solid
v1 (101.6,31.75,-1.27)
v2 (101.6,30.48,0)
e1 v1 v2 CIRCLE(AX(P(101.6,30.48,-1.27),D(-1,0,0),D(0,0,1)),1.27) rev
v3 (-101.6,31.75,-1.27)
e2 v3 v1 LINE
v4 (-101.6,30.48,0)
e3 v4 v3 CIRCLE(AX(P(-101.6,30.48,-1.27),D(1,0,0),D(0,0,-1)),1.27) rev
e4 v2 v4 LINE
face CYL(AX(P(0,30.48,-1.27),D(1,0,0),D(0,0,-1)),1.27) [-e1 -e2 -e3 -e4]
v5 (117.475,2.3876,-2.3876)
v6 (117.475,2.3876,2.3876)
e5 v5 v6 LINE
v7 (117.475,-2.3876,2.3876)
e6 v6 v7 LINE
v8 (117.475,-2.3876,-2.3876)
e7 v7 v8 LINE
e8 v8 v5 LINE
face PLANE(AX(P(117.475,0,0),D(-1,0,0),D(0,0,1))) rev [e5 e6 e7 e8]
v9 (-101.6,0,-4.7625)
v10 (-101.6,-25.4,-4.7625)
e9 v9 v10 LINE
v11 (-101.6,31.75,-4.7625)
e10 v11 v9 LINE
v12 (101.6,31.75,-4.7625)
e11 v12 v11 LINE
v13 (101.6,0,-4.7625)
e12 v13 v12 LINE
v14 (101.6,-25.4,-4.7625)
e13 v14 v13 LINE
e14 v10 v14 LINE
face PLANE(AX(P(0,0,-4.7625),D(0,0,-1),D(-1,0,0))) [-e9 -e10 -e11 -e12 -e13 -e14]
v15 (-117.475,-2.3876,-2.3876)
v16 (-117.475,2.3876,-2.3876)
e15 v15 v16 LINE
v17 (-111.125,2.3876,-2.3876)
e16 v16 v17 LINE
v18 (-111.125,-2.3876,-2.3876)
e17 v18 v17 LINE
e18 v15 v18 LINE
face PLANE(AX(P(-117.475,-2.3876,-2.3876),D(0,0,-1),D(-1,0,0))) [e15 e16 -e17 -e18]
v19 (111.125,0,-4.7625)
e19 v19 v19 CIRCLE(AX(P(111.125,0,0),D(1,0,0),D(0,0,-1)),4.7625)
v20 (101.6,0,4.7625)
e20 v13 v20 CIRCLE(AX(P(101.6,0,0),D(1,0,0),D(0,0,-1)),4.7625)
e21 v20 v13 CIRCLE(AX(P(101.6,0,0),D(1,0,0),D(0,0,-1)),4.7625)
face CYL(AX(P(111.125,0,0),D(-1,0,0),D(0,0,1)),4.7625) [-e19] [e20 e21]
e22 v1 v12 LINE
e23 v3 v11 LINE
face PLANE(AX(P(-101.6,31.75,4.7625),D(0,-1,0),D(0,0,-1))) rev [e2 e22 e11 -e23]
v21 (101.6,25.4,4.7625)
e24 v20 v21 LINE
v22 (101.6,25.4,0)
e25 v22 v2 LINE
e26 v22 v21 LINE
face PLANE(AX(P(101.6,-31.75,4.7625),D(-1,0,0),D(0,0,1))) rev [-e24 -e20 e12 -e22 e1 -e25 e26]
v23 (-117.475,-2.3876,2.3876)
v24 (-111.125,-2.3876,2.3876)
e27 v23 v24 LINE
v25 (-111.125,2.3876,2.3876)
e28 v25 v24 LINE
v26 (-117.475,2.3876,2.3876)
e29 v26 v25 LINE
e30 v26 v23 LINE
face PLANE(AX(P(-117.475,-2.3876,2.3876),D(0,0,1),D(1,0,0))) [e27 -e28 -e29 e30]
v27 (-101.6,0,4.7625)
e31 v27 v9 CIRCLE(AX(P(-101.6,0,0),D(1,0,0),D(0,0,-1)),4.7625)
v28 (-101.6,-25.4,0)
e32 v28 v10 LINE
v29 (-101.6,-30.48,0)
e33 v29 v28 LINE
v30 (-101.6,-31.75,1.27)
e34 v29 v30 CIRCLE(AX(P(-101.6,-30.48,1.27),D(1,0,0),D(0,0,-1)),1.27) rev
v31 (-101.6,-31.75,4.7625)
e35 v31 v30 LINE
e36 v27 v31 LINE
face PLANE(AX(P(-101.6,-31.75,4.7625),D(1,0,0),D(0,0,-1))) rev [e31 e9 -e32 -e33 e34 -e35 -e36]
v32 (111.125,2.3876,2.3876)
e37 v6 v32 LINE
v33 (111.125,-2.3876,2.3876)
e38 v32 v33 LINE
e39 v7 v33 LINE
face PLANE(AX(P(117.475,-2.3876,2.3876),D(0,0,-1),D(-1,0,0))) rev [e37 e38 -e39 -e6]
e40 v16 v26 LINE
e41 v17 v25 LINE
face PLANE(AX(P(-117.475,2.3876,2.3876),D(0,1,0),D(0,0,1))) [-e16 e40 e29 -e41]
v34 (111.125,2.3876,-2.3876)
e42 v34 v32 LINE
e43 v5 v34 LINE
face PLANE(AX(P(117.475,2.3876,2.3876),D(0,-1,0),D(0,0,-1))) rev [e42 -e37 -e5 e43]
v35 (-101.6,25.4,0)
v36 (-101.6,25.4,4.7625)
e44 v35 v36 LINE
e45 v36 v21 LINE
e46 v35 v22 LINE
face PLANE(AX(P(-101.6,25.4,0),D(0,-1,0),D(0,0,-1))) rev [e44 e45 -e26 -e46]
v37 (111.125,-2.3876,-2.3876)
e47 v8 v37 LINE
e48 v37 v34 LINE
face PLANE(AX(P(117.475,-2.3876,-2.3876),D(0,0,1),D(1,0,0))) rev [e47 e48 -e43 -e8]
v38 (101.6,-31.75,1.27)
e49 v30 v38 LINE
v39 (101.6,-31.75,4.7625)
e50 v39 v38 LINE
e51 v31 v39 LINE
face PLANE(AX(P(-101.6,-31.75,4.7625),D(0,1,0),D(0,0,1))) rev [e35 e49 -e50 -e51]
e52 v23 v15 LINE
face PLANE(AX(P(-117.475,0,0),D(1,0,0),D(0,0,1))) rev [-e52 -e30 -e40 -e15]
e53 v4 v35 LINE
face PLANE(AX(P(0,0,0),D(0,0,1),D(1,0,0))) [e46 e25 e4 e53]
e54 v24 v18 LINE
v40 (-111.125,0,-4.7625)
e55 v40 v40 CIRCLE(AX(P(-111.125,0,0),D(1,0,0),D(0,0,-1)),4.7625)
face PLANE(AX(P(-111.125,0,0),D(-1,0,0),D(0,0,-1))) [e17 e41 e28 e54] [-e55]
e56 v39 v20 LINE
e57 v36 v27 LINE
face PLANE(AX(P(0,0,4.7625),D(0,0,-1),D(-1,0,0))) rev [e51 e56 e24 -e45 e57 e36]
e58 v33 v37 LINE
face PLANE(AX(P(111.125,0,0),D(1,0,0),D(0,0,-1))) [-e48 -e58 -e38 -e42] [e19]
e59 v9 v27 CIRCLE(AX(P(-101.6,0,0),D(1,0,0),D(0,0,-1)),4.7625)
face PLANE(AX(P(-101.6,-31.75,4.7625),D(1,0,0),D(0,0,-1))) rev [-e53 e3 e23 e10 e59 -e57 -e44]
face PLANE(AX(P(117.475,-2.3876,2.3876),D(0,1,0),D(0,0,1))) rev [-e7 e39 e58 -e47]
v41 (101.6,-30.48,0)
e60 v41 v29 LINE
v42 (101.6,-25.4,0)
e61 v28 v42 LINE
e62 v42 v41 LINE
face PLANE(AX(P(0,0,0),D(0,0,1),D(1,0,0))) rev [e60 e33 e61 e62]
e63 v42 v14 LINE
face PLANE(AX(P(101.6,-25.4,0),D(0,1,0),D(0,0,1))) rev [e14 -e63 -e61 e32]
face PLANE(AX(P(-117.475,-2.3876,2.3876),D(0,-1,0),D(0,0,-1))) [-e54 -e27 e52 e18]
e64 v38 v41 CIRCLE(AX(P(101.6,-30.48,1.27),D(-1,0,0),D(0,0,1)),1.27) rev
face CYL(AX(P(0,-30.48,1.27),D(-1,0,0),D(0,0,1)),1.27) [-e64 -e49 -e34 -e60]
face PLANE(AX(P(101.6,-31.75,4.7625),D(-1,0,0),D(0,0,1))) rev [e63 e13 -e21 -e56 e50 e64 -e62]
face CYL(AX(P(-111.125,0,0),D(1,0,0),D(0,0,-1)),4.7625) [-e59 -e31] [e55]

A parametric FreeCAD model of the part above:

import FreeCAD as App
import Part
import Sketcher
from FreeCAD import Vector
Q = App.Units.Quantity


def edges_at(feature, points):
    """Names of the edges that pass closest to the given points."""
    edges = feature.Shape.Edges
    near = lambda p: min(range(len(edges)), key=lambda i: edges[i].distToShape(Part.Vertex(*p))[0])
    return sorted({f"Edge{near(p) + 1}" for p in points})

doc = App.newDocument("Part")
body = doc.addObject("PartDesign::Body", "Body")

# Sketch on XY plane
sketch1 = doc.addObject("Sketcher::SketchObject", "Sketch")
body.addObject(sketch1)
sketch1.AttachmentSupport = (doc.XY_Plane, [""])
sketch1.MapMode = "FlatFace"
sketch1.addGeometry([
    Part.LineSegment(Vector(-102, 32, 0), Vector(-102, -32, 0)),
    Part.LineSegment(Vector(-102, -32, 0), Vector(102, -32, 0)),
    Part.LineSegment(Vector(102, -32, 0), Vector(102, 32, 0)),
    Part.LineSegment(Vector(102, 32, 0), Vector(-102, 32, 0)),
], False)
sketch1.addConstraint([
    Sketcher.Constraint("Coincident", 0, 2, 1, 1),
    Sketcher.Constraint("Coincident", 1, 2, 2, 1),
    Sketcher.Constraint("Coincident", 2, 2, 3, 1),
    Sketcher.Constraint("Coincident", 3, 2, 0, 1),
    Sketcher.Constraint("Vertical", 0),
    Sketcher.Constraint("Horizontal", 1),
    Sketcher.Constraint("Vertical", 2),
    Sketcher.Constraint("Horizontal", 3),
    Sketcher.Constraint("Symmetric", 0, 2, 2, 2, -1, 1),
    Sketcher.Constraint("DistanceX", 1, 1, 1, 2, Q("8 in")),
    Sketcher.Constraint("DistanceY", 0, 2, 0, 1, Q("2.5 in")),
])
pad1 = doc.addObject("PartDesign::Pad", "Pad")
body.addObject(pad1)
pad1.Profile = sketch1
pad1.Length = Q("0.375 in")
pad1.Midplane = True

# Sketch on YZ plane
sketch2 = doc.addObject("Sketcher::SketchObject", "Sketch001")
body.addObject(sketch2)
sketch2.AttachmentSupport = (doc.YZ_Plane, [""])
sketch2.MapMode = "FlatFace"
sketch2.AttachmentOffset = App.Placement(Vector(0, 0, 4 * 25.4), App.Rotation())
sketch2.addGeometry(Part.Circle(Vector(0, 0, 0), Vector(0, 0, 1), 4.8), False)
sketch2.addConstraint([
    Sketcher.Constraint("Coincident", 0, 3, -1, 1),
    Sketcher.Constraint("Diameter", 0, Q("0.375 in")),
])
pad2 = doc.addObject("PartDesign::Pad", "Pad001")
body.addObject(pad2)
pad2.Profile = sketch2
pad2.Length = Q("0.375 in")

# Sketch on YZ plane
sketch3 = doc.addObject("Sketcher::SketchObject", "Sketch002")
body.addObject(sketch3)
sketch3.AttachmentSupport = (doc.YZ_Plane, [""])
sketch3.MapMode = "FlatFace"
sketch3.AttachmentOffset = App.Placement(Vector(0, 0, 4.375 * 25.4), App.Rotation())
sketch3.addGeometry([
    Part.LineSegment(Vector(2.4, 2.4, 0), Vector(-2.4, 2.4, 0)),
    Part.LineSegment(Vector(-2.4, 2.4, 0), Vector(-2.4, -2.4, 0)),
    Part.LineSegment(Vector(-2.4, -2.4, 0), Vector(2.4, -2.4, 0)),
    Part.LineSegment(Vector(2.4, -2.4, 0), Vector(2.4, 2.4, 0)),
], False)
sketch3.addConstraint([
    Sketcher.Constraint("Coincident", 0, 2, 1, 1),
    Sketcher.Constraint("Coincident", 1, 2, 2, 1),
    Sketcher.Constraint("Coincident", 2, 2, 3, 1),
    Sketcher.Constraint("Coincident", 3, 2, 0, 1),
    Sketcher.Constraint("Horizontal", 0),
    Sketcher.Constraint("Vertical", 1),
    Sketcher.Constraint("Horizontal", 2),
    Sketcher.Constraint("Vertical", 3),
    Sketcher.Constraint("Symmetric", 0, 2, 2, 2, -1, 1),
    Sketcher.Constraint("Equal", 2, 1),
    Sketcher.Constraint("DistanceX", 0, 2, 0, 1, Q("0.188 in")),
])
pad3 = doc.addObject("PartDesign::Pad", "Pad002")
body.addObject(pad3)
pad3.Profile = sketch3
pad3.Length = Q("0.25 in")
doc.recompute()

mirrored = doc.addObject("PartDesign::Mirrored", "Mirrored")
body.addObject(mirrored)
mirrored.Originals = [pad2, pad3]
mirrored.MirrorPlane = (doc.YZ_Plane, [""])
body.Tip = mirrored

# Sketch on XY plane
sketch4 = doc.addObject("Sketcher::SketchObject", "Sketch003")
body.addObject(sketch4)
sketch4.AttachmentSupport = (doc.XY_Plane, [""])
sketch4.MapMode = "FlatFace"
sketch4.AttachmentOffset = App.Placement(Vector(0, 0, 0.1875 * 25.4), App.Rotation())
sketch4.addGeometry([
    Part.LineSegment(Vector(-102, 32, 0), Vector(-102, 25, 0)),
    Part.LineSegment(Vector(-102, 25, 0), Vector(102, 25, 0)),
    Part.LineSegment(Vector(102, 25, 0), Vector(102, 32, 0)),
    Part.LineSegment(Vector(102, 32, 0), Vector(-102, 32, 0)),
], False)
sketch4.addConstraint([
    Sketcher.Constraint("Coincident", 0, 2, 1, 1),
    Sketcher.Constraint("Coincident", 1, 2, 2, 1),
    Sketcher.Constraint("Coincident", 2, 2, 3, 1),
    Sketcher.Constraint("Coincident", 3, 2, 0, 1),
    Sketcher.Constraint("Vertical", 0),
    Sketcher.Constraint("Horizontal", 1),
    Sketcher.Constraint("Vertical", 2),
    Sketcher.Constraint("Horizontal", 3),
    Sketcher.Constraint("DistanceX", 1, 1, 1, 2, Q("8 in")),
    Sketcher.Constraint("DistanceX", 0, 2, -1, 1, Q("4 in")),
    Sketcher.Constraint("DistanceY", -1, 1, 0, 2, Q("1 in")),
    Sketcher.Constraint("DistanceY", 0, 2, 0, 1, Q("0.25 in")),
])
pocket1 = doc.addObject("PartDesign::Pocket", "Pocket")
body.addObject(pocket1)
pocket1.Profile = sketch4
pocket1.Length = Q("0.1875 in")

# Sketch on XY plane
sketch5 = doc.addObject("Sketcher::SketchObject", "Sketch004")
body.addObject(sketch5)
sketch5.AttachmentSupport = (doc.XY_Plane, [""])
sketch5.MapMode = "FlatFace"
sketch5.AttachmentOffset = App.Placement(Vector(0, 0, -0.1875 * 25.4), App.Rotation())
sketch5.addGeometry([
    Part.LineSegment(Vector(102, -25, 0), Vector(102, -32, 0)),
    Part.LineSegment(Vector(102, -32, 0), Vector(-102, -32, 0)),
    Part.LineSegment(Vector(-102, -32, 0), Vector(-102, -25, 0)),
    Part.LineSegment(Vector(-102, -25, 0), Vector(102, -25, 0)),
], False)
sketch5.addConstraint([
    Sketcher.Constraint("Coincident", 0, 2, 1, 1),
    Sketcher.Constraint("Coincident", 1, 2, 2, 1),
    Sketcher.Constraint("Coincident", 2, 2, 3, 1),
    Sketcher.Constraint("Coincident", 3, 2, 0, 1),
    Sketcher.Constraint("Vertical", 0),
    Sketcher.Constraint("Horizontal", 1),
    Sketcher.Constraint("Vertical", 2),
    Sketcher.Constraint("Horizontal", 3),
    Sketcher.Constraint("DistanceX", 1, 2, 1, 1, Q("8 in")),
    Sketcher.Constraint("DistanceX", -1, 1, 0, 2, Q("4 in")),
    Sketcher.Constraint("DistanceY", 2, 2, -1, 1, Q("1 in")),
    Sketcher.Constraint("DistanceY", 0, 2, 0, 1, Q("0.25 in")),
])
pocket2 = doc.addObject("PartDesign::Pocket", "Pocket001")
body.addObject(pocket2)
pocket2.Profile = sketch5
pocket2.Length = Q("0.1875 in")
pocket2.Reversed = True
doc.recompute()

fillet = doc.addObject("PartDesign::Fillet", "Fillet")
body.addObject(fillet)
fillet.Base = (pocket2, edges_at(pocket2, [(0, 31.75, 0), (0, -31.75, 0)]))
fillet.Radius = Q("0.05 in")

doc.recompute()
